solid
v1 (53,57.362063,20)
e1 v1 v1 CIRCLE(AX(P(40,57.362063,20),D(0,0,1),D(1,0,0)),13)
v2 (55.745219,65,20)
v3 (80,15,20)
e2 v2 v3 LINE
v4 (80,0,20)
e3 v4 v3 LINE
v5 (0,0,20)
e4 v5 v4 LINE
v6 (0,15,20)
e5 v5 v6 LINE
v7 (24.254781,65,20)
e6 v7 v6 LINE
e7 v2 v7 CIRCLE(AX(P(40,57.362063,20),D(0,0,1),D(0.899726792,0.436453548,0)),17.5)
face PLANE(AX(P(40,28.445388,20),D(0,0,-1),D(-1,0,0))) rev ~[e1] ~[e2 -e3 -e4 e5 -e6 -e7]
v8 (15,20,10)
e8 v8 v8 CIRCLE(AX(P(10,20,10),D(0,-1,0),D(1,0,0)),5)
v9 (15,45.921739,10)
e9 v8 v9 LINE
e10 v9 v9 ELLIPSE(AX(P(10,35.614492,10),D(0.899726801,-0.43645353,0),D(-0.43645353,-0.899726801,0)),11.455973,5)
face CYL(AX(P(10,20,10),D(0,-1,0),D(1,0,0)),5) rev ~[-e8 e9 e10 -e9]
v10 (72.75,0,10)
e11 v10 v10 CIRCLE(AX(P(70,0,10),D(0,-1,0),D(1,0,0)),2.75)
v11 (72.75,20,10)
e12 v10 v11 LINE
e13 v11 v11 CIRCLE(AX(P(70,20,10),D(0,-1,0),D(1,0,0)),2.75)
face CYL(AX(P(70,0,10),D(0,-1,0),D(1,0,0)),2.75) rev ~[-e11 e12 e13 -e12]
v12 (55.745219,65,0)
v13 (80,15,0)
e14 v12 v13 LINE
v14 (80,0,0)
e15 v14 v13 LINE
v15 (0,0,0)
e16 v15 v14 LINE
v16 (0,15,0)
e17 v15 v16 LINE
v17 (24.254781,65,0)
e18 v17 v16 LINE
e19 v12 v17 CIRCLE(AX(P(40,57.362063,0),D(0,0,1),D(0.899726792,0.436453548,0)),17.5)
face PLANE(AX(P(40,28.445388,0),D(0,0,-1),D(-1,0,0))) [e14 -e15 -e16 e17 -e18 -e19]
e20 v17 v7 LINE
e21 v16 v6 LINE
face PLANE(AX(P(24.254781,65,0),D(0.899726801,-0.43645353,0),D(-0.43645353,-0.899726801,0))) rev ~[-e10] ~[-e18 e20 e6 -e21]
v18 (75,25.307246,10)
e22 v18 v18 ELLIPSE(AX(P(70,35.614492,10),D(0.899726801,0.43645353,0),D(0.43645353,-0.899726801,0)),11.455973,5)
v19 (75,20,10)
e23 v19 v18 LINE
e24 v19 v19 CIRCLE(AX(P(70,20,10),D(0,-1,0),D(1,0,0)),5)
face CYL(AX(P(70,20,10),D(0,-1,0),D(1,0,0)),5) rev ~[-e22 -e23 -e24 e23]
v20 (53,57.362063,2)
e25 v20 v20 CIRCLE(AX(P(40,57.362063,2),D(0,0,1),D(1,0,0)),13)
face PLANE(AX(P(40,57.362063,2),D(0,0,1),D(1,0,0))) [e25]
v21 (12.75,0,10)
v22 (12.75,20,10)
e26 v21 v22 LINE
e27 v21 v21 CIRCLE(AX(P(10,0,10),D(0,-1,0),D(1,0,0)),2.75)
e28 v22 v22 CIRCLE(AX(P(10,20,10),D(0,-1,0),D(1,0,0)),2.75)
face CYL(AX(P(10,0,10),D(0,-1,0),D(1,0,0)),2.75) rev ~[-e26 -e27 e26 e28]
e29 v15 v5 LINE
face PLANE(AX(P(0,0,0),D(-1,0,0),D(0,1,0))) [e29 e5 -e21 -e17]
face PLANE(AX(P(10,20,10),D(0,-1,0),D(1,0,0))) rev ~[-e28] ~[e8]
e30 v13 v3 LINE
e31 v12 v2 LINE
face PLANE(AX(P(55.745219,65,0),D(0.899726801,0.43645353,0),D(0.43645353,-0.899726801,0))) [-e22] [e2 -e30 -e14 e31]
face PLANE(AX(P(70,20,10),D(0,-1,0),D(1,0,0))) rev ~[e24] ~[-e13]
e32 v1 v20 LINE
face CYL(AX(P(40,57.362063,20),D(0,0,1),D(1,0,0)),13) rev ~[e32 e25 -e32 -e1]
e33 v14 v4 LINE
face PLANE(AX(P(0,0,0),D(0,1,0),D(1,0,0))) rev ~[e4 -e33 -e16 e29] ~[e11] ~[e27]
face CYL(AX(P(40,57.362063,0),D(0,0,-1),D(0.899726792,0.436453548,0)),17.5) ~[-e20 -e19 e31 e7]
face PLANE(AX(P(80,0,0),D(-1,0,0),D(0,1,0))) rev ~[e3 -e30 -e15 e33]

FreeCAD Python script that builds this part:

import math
import FreeCAD as App
import Part
import Sketcher
Q = App.Units.Quantity

doc = App.newDocument("Part")
body = doc.addObject("PartDesign::Body", "Body")

sketch1 = body.newObject("Sketcher::SketchObject", "Sketch")
sketch1.AttachmentSupport = (doc.getObject("XY_Plane"), [""])
sketch1.MapMode = "FlatFace"
sketch1.addGeometry(Part.LineSegment(App.Vector(0, 15, 0), App.Vector(0, 0, 0)), False)
sketch1.addGeometry(Part.LineSegment(App.Vector(0, 0, 0), App.Vector(80, 0, 0)), False)
sketch1.addGeometry(Part.LineSegment(App.Vector(80, 0, 0), App.Vector(80, 15, 0)), False)
sketch1.addGeometry(Part.LineSegment(App.Vector(80, 15, 0), App.Vector(56, 65, 0)), False)
sketch1.addGeometry(Part.ArcOfCircle(Part.Circle(App.Vector(40, 57, 0), App.Vector(0, 0, 1), 18), math.radians(26), math.radians(154)), False)
sketch1.addGeometry(Part.LineSegment(App.Vector(24, 65, 0), App.Vector(0, 15, 0)), False)
sketch1.addConstraint(Sketcher.Constraint("Coincident", 0, 2, 1, 1))
sketch1.addConstraint(Sketcher.Constraint("Coincident", 1, 2, 2, 1))
sketch1.addConstraint(Sketcher.Constraint("Coincident", 2, 2, 3, 1))
sketch1.addConstraint(Sketcher.Constraint("Tangent", 3, 2, 4, 1))
sketch1.addConstraint(Sketcher.Constraint("Tangent", 4, 2, 5, 1))
sketch1.addConstraint(Sketcher.Constraint("Coincident", 5, 2, 0, 1))
sketch1.addConstraint(Sketcher.Constraint("Vertical", 0))
sketch1.addConstraint(Sketcher.Constraint("Horizontal", 1))
sketch1.addConstraint(Sketcher.Constraint("Vertical", 2))
sketch1.addConstraint(Sketcher.Constraint("Coincident", 0, 2, -1, 1))
sketch1.addConstraint(Sketcher.Constraint("Horizontal", 3, 2, 4, 2))
sketch1.addConstraint(Sketcher.Constraint("Horizontal", 2, 2, 5, 2))
sketch1.addConstraint(Sketcher.Constraint("Radius", 4, Q("17.5 mm")))
sketch1.addConstraint(Sketcher.Constraint("DistanceX", 1, 1, 1, 2, Q("80 mm")))
sketch1.addConstraint(Sketcher.Constraint("DistanceY", 0, 2, 0, 1, Q("15 mm")))
sketch1.addConstraint(Sketcher.Constraint("DistanceY", -1, 1, 3, 2, Q("65 mm")))
pad1 = body.newObject("PartDesign::Pad", "Pad")
pad1.Profile = sketch1
pad1.Length = 20

sketch2 = body.newObject("Sketcher::SketchObject", "Sketch001")
sketch2.AttachmentSupport = (doc.getObject("XY_Plane"), [""])
sketch2.MapMode = "FlatFace"
sketch2.AttachmentOffset = App.Placement(App.Vector(0, 0, 20), App.Rotation())
sketch2.addGeometry(Part.Circle(App.Vector(40, 57, 0), App.Vector(0, 0, 1), 13), False)
sketch2.addConstraint(Sketcher.Constraint("Diameter", 0, Q("26 mm")))
sketch2.addConstraint(Sketcher.Constraint("DistanceX", -1, 1, 0, 3, Q("40 mm")))
sketch2.addConstraint(Sketcher.Constraint("DistanceY", -1, 1, 0, 3, Q("57.362063 mm")))
pocket1 = body.newObject("PartDesign::Pocket", "Pocket")
pocket1.Profile = sketch2
pocket1.Length = 18

sketch3 = body.newObject("Sketcher::SketchObject", "Sketch002")
sketch3.AttachmentSupport = (doc.getObject("XZ_Plane"), [""])
sketch3.MapMode = "FlatFace"
sketch3.addGeometry(Part.Circle(App.Vector(10, 10, 0), App.Vector(0, 0, 1), 2.8), False)
sketch3.addGeometry(Part.Circle(App.Vector(70, 10, 0), App.Vector(0, 0, 1), 2.8), False)
sketch3.addConstraint(Sketcher.Constraint("Equal", 0, 1))
sketch3.addConstraint(Sketcher.Constraint("Horizontal", 0, 3, 1, 3))
sketch3.addConstraint(Sketcher.Constraint("Diameter", 0, Q("5.5 mm")))
sketch3.addConstraint(Sketcher.Constraint("DistanceX", -1, 1, 0, 3, Q("10 mm")))
sketch3.addConstraint(Sketcher.Constraint("DistanceY", -1, 1, 0, 3, Q("10 mm")))
sketch3.addConstraint(Sketcher.Constraint("DistanceX", -1, 1, 1, 3, Q("70 mm")))
pocket2 = body.newObject("PartDesign::Pocket", "Pocket001")
pocket2.Profile = sketch3
pocket2.Type = "ThroughAll"

sketch4 = body.newObject("Sketcher::SketchObject", "Sketch003")
sketch4.AttachmentSupport = (doc.getObject("XZ_Plane"), [""])
sketch4.MapMode = "FlatFace"
sketch4.AttachmentOffset = App.Placement(App.Vector(0, 0, -20), App.Rotation())
sketch4.addGeometry(Part.Circle(App.Vector(70, 10, 0), App.Vector(0, 0, 1), 5), False)
sketch4.addGeometry(Part.Circle(App.Vector(10, 10, 0), App.Vector(0, 0, 1), 5), False)
sketch4.addConstraint(Sketcher.Constraint("Equal", 0, 1))
sketch4.addConstraint(Sketcher.Constraint("Horizontal", 0, 3, 1, 3))
sketch4.addConstraint(Sketcher.Constraint("Diameter", 0, Q("10 mm")))
sketch4.addConstraint(Sketcher.Constraint("DistanceX", -1, 1, 0, 3, Q("70 mm")))
sketch4.addConstraint(Sketcher.Constraint("DistanceY", -1, 1, 0, 3, Q("10 mm")))
sketch4.addConstraint(Sketcher.Constraint("DistanceX", -1, 1, 1, 3, Q("10 mm")))
pocket3 = body.newObject("PartDesign::Pocket", "Pocket002")
pocket3.Profile = sketch4
pocket3.Length = 50

doc.recompute()
